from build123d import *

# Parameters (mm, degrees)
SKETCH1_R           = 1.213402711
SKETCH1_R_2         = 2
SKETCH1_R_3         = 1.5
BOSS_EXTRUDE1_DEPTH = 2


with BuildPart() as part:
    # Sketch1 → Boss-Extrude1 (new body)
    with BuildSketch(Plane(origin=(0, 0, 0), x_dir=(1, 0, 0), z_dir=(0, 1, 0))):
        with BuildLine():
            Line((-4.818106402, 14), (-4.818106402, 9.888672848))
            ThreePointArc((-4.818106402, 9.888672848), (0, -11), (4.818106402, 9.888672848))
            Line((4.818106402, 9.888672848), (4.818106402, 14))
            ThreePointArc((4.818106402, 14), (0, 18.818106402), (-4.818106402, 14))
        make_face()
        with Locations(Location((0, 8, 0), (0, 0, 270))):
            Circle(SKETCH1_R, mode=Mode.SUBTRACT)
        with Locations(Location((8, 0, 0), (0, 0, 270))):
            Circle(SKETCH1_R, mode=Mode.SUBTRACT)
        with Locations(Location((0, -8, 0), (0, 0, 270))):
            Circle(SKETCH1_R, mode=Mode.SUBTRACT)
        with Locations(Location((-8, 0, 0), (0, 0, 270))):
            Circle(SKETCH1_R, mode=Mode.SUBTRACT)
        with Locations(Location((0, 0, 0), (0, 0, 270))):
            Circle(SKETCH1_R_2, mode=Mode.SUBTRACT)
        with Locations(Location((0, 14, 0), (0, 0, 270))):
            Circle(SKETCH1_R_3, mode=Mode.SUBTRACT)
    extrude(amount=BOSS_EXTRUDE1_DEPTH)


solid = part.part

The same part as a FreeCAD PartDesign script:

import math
import FreeCAD as App
import Part
import Sketcher

V = App.Vector

doc = App.newDocument("Part")
params = doc.addObject("Spreadsheet::Sheet", "Params")
for row, (alias, value) in enumerate([
    ("sketch1_diameter", "4 mm"),
    ("sketch1_diameter2", "3 mm"),
    ("sketch1_radius", "11 mm"),
    ("pad1_length", "2 mm"),
], start=1):
    params.set(f"A{row}", alias)
    params.set(f"B{row}", "=" + value)
    params.setAlias(f"B{row}", alias)

body = doc.addObject("PartDesign::Body", "Body")

# Sketch on XZ plane
sketch1 = doc.addObject("Sketcher::SketchObject", "Sketch")
body.addObject(sketch1)
sketch1.AttachmentSupport = (doc.XZ_Plane, [""])
sketch1.MapMode = "FlatFace"
sketch1.addGeometry(Part.LineSegment(V(-4.8, -14, 0), V(-4.8, -9.9, 0)), False)
sketch1.addGeometry(Part.ArcOfCircle(Part.Circle(V(0, 0, 0), V(0, 0, 1), 11), math.radians(-64), math.radians(244)), False)
sketch1.addGeometry(Part.LineSegment(V(4.8, -9.9, 0), V(4.8, -14, 0)), False)
sketch1.addGeometry(Part.ArcOfCircle(Part.Circle(V(0, -14, 0), V(0, 0, 1), 4.8), math.radians(180), math.radians(360)), False)
sketch1.addGeometry(Part.Circle(V(-8, 0, 0), V(0, 0, 1), 1.2), False)
sketch1.addGeometry(Part.Circle(V(0, 8, 0), V(0, 0, 1), 1.2), False)
sketch1.addGeometry(Part.Circle(V(0, 0, 0), V(0, 0, 1), 2), False)
sketch1.addGeometry(Part.Circle(V(8, 0, 0), V(0, 0, 1), 1.2), False)
sketch1.addGeometry(Part.Circle(V(0, -8, 0), V(0, 0, 1), 1.2), False)
sketch1.addGeometry(Part.Circle(V(0, -14, 0), V(0, 0, 1), 1.5), False)
sketch1.addConstraint(Sketcher.Constraint("Coincident", 0, 2, 1, 2))
sketch1.addConstraint(Sketcher.Constraint("Coincident", 1, 1, 2, 1))
sketch1.addConstraint(Sketcher.Constraint("Tangent", 2, 2, 3, 2))
sketch1.addConstraint(Sketcher.Constraint("Tangent", 3, 1, 0, 1))
sketch1.addConstraint(Sketcher.Constraint("Vertical", 0))
sketch1.addConstraint(Sketcher.Constraint("Vertical", 2))
sketch1.addConstraint(Sketcher.Constraint("Coincident", 1, 3, -1, 1))
sketch1.addConstraint(Sketcher.Constraint("Coincident", 6, 3, -1, 1))
sketch1.addConstraint(Sketcher.Constraint("Coincident", 9, 3, 3, 3))
sketch1.addConstraint(Sketcher.Constraint("Equal", 4, 5))
sketch1.addConstraint(Sketcher.Constraint("Equal", 5, 7))
sketch1.addConstraint(Sketcher.Constraint("Equal", 7, 8))
sketch1.addConstraint(Sketcher.Constraint("Symmetric", 4, 3, 7, 3, -1, 1))
sketch1.addConstraint(Sketcher.Constraint("Symmetric", 5, 3, 8, 3, -1, 1))
sketch1.addConstraint(Sketcher.Constraint("PointOnObject", 3, 3, -2))
sketch1.addConstraint(Sketcher.Constraint("PointOnObject", 4, 3, -1))
sketch1.addConstraint(Sketcher.Constraint("PointOnObject", 5, 3, -2))
sketch1.addConstraint(Sketcher.Constraint("Diameter", 6, 4.0))
sketch1.addConstraint(Sketcher.Constraint("Diameter", 9, 3.0))
sketch1.addConstraint(Sketcher.Constraint("Radius", 1, 11.0))
sketch1.addConstraint(Sketcher.Constraint("DistanceY", 3, 3, -1, 1, 14.0))
sketch1.addConstraint(Sketcher.Constraint("DistanceX", 4, 3, -1, 1, 8.0))
sketch1.addConstraint(Sketcher.Constraint("DistanceY", -1, 1, 5, 3, 8.0))
sketch1.addConstraint(Sketcher.Constraint("Diameter", 4, 2.426805))
sketch1.addConstraint(Sketcher.Constraint("Radius", 3, 4.818106))
sketch1.setExpression("Constraints[17]", "Params.sketch1_diameter")
sketch1.setExpression("Constraints[18]", "Params.sketch1_diameter2")
sketch1.setExpression("Constraints[19]", "Params.sketch1_radius")
pad1 = doc.addObject("PartDesign::Pad", "Pad")
body.addObject(pad1)
pad1.Profile = sketch1
pad1.setExpression("Length", "Params.pad1_length")
pad1.Reversed = True

doc.recompute()
